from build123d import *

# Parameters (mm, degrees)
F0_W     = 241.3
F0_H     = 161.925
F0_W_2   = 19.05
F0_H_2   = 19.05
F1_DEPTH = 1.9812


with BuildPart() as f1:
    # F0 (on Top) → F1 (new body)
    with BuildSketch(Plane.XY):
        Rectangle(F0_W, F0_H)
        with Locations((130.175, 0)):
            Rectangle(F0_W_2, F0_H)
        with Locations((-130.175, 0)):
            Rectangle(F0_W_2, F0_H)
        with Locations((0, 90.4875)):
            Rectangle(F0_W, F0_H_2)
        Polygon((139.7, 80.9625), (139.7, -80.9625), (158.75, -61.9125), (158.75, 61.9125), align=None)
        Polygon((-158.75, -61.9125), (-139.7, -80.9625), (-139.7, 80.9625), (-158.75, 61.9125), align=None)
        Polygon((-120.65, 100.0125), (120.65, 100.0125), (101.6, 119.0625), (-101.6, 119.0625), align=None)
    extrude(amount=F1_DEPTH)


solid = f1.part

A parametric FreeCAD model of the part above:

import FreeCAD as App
import Part
import Sketcher

V = App.Vector
Q = App.Units.Quantity

doc = App.newDocument("Part")
body = doc.addObject("PartDesign::Body", "Body")

# Sketch on XY plane
sketch1 = body.newObject("Sketcher::SketchObject", "Sketch")
sketch1.AttachmentSupport = (doc.getObject("XY_Plane"), [""])
sketch1.MapMode = "FlatFace"
sketch1.addGeometry([
    Part.LineSegment(V(139.7, 80.9625, 0), V(120.65, 80.9625, 0)),  # 0
    Part.LineSegment(V(120.65, 80.9625, 0), V(120.65, 100.0125, 0)),  # 1
    Part.LineSegment(V(120.65, 100.0125, 0), V(101.6, 119.0625, 0)),  # 2
    Part.LineSegment(V(101.6, 119.0625, 0), V(-101.6, 119.0625, 0)),  # 3
    Part.LineSegment(V(-101.6, 119.0625, 0), V(-120.65, 100.0125, 0)),  # 4
    Part.LineSegment(V(-120.65, 100.0125, 0), V(-120.65, 80.9625, 0)),  # 5
    Part.LineSegment(V(-120.65, 80.9625, 0), V(-139.7, 80.9625, 0)),  # 6
    Part.LineSegment(V(-139.7, 80.9625, 0), V(-158.75, 61.9125, 0)),  # 7
    Part.LineSegment(V(-158.75, 61.9125, 0), V(-158.75, -61.9125, 0)),  # 8
    Part.LineSegment(V(-158.75, -61.9125, 0), V(-139.7, -80.9625, 0)),  # 9
    Part.LineSegment(V(-139.7, -80.9625, 0), V(139.7, -80.9625, 0)),  # 10
    Part.LineSegment(V(139.7, -80.9625, 0), V(158.75, -61.9125, 0)),  # 11
    Part.LineSegment(V(158.75, -61.9125, 0), V(158.75, 61.9125, 0)),  # 12
    Part.LineSegment(V(158.75, 61.9125, 0), V(139.7, 80.9625, 0)),  # 13
], False)
sketch1.addConstraint([
    Sketcher.Constraint("Coincident", 0, 2, 1, 1),
    Sketcher.Constraint("Coincident", 1, 2, 2, 1),
    Sketcher.Constraint("Coincident", 2, 2, 3, 1),
    Sketcher.Constraint("Coincident", 3, 2, 4, 1),
    Sketcher.Constraint("Coincident", 4, 2, 5, 1),
    Sketcher.Constraint("Coincident", 5, 2, 6, 1),
    Sketcher.Constraint("Coincident", 6, 2, 7, 1),
    Sketcher.Constraint("Coincident", 7, 2, 8, 1),
    Sketcher.Constraint("Coincident", 8, 2, 9, 1),
    Sketcher.Constraint("Coincident", 9, 2, 10, 1),
    Sketcher.Constraint("Coincident", 10, 2, 11, 1),
    Sketcher.Constraint("Coincident", 11, 2, 12, 1),
    Sketcher.Constraint("Coincident", 12, 2, 13, 1),
    Sketcher.Constraint("Coincident", 13, 2, 0, 1),
    Sketcher.Constraint("Horizontal", 0),
    Sketcher.Constraint("Vertical", 1),
    Sketcher.Constraint("Horizontal", 3),
    Sketcher.Constraint("Vertical", 5),
    Sketcher.Constraint("Horizontal", 6),
    Sketcher.Constraint("Vertical", 8),
    Sketcher.Constraint("Horizontal", 10),
    Sketcher.Constraint("Vertical", 12),
    Sketcher.Constraint("Symmetric", 6, 2, 10, 2, -1, 1),
    Sketcher.Constraint("Symmetric", 7, 2, 11, 2, -1, 1),
    Sketcher.Constraint("Symmetric", 9, 2, 13, 2, -1, 1),
    Sketcher.Constraint("Symmetric", 1, 2, 4, 2, -2),
    Sketcher.Constraint("Perpendicular", 2, 4),
    Sketcher.Constraint("Parallel", 4, 7),
    Sketcher.Constraint("Perpendicular", 7, 9),
    Sketcher.Constraint("Perpendicular", 11, 13),
    Sketcher.Constraint("Horizontal", 8, 2, 11, 2),
    Sketcher.Constraint("Vertical", 6, 2, 9, 2),
    Sketcher.Constraint("Equal", 6, 1),
    Sketcher.Constraint("Equal", 4, 7),
    Sketcher.Constraint("DistanceX", 3, 2, 3, 1, Q("8 in")),
    Sketcher.Constraint("DistanceX", 10, 1, 10, 2, Q("11 in")),
    Sketcher.Constraint("DistanceX", 0, 2, 0, 1, Q("0.75 in")),
    Sketcher.Constraint("DistanceY", 8, 2, 8, 1, Q("4.875 in")),
])
pad1 = body.newObject("PartDesign::Pad", "Pad")
pad1.Profile = sketch1
pad1.Length = Q("0.078 in")

doc.recompute()
